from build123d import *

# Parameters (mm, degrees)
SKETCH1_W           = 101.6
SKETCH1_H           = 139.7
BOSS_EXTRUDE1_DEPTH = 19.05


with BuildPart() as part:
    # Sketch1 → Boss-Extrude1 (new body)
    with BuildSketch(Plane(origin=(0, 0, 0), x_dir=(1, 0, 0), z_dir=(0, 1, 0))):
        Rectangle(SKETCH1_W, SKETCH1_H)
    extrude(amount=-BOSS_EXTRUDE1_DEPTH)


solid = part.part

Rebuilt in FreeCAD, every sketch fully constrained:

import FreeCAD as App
import Part
import Sketcher

V = App.Vector
Q = App.Units.Quantity

doc = App.newDocument("Part")
body = doc.addObject("PartDesign::Body", "Body")

# Sketch on XZ plane
sketch1 = body.newObject("Sketcher::SketchObject", "Sketch")
sketch1.AttachmentSupport = (doc.getObject("XZ_Plane"), [""])
sketch1.MapMode = "FlatFace"
sketch1.addGeometry([
    Part.LineSegment(V(-51, -70, 0), V(-51, 70, 0)),
    Part.LineSegment(V(-51, 70, 0), V(51, 70, 0)),
    Part.LineSegment(V(51, 70, 0), V(51, -70, 0)),
    Part.LineSegment(V(51, -70, 0), V(-51, -70, 0)),
], False)
sketch1.addConstraint([
    Sketcher.Constraint("Coincident", 0, 2, 1, 1),
    Sketcher.Constraint("Coincident", 1, 2, 2, 1),
    Sketcher.Constraint("Coincident", 2, 2, 3, 1),
    Sketcher.Constraint("Coincident", 3, 2, 0, 1),
    Sketcher.Constraint("Vertical", 0),
    Sketcher.Constraint("Horizontal", 1),
    Sketcher.Constraint("Vertical", 2),
    Sketcher.Constraint("Horizontal", 3),
    Sketcher.Constraint("Symmetric", 0, 2, 2, 2, -1, 1),
    Sketcher.Constraint("DistanceX", 1, 1, 1, 2, Q("4 in")),
    Sketcher.Constraint("DistanceY", 0, 1, 0, 2, Q("5.5 in")),
])
pad1 = body.newObject("PartDesign::Pad", "Pad")
pad1.Profile = sketch1
pad1.Length = Q("0.75 in")

doc.recompute()
